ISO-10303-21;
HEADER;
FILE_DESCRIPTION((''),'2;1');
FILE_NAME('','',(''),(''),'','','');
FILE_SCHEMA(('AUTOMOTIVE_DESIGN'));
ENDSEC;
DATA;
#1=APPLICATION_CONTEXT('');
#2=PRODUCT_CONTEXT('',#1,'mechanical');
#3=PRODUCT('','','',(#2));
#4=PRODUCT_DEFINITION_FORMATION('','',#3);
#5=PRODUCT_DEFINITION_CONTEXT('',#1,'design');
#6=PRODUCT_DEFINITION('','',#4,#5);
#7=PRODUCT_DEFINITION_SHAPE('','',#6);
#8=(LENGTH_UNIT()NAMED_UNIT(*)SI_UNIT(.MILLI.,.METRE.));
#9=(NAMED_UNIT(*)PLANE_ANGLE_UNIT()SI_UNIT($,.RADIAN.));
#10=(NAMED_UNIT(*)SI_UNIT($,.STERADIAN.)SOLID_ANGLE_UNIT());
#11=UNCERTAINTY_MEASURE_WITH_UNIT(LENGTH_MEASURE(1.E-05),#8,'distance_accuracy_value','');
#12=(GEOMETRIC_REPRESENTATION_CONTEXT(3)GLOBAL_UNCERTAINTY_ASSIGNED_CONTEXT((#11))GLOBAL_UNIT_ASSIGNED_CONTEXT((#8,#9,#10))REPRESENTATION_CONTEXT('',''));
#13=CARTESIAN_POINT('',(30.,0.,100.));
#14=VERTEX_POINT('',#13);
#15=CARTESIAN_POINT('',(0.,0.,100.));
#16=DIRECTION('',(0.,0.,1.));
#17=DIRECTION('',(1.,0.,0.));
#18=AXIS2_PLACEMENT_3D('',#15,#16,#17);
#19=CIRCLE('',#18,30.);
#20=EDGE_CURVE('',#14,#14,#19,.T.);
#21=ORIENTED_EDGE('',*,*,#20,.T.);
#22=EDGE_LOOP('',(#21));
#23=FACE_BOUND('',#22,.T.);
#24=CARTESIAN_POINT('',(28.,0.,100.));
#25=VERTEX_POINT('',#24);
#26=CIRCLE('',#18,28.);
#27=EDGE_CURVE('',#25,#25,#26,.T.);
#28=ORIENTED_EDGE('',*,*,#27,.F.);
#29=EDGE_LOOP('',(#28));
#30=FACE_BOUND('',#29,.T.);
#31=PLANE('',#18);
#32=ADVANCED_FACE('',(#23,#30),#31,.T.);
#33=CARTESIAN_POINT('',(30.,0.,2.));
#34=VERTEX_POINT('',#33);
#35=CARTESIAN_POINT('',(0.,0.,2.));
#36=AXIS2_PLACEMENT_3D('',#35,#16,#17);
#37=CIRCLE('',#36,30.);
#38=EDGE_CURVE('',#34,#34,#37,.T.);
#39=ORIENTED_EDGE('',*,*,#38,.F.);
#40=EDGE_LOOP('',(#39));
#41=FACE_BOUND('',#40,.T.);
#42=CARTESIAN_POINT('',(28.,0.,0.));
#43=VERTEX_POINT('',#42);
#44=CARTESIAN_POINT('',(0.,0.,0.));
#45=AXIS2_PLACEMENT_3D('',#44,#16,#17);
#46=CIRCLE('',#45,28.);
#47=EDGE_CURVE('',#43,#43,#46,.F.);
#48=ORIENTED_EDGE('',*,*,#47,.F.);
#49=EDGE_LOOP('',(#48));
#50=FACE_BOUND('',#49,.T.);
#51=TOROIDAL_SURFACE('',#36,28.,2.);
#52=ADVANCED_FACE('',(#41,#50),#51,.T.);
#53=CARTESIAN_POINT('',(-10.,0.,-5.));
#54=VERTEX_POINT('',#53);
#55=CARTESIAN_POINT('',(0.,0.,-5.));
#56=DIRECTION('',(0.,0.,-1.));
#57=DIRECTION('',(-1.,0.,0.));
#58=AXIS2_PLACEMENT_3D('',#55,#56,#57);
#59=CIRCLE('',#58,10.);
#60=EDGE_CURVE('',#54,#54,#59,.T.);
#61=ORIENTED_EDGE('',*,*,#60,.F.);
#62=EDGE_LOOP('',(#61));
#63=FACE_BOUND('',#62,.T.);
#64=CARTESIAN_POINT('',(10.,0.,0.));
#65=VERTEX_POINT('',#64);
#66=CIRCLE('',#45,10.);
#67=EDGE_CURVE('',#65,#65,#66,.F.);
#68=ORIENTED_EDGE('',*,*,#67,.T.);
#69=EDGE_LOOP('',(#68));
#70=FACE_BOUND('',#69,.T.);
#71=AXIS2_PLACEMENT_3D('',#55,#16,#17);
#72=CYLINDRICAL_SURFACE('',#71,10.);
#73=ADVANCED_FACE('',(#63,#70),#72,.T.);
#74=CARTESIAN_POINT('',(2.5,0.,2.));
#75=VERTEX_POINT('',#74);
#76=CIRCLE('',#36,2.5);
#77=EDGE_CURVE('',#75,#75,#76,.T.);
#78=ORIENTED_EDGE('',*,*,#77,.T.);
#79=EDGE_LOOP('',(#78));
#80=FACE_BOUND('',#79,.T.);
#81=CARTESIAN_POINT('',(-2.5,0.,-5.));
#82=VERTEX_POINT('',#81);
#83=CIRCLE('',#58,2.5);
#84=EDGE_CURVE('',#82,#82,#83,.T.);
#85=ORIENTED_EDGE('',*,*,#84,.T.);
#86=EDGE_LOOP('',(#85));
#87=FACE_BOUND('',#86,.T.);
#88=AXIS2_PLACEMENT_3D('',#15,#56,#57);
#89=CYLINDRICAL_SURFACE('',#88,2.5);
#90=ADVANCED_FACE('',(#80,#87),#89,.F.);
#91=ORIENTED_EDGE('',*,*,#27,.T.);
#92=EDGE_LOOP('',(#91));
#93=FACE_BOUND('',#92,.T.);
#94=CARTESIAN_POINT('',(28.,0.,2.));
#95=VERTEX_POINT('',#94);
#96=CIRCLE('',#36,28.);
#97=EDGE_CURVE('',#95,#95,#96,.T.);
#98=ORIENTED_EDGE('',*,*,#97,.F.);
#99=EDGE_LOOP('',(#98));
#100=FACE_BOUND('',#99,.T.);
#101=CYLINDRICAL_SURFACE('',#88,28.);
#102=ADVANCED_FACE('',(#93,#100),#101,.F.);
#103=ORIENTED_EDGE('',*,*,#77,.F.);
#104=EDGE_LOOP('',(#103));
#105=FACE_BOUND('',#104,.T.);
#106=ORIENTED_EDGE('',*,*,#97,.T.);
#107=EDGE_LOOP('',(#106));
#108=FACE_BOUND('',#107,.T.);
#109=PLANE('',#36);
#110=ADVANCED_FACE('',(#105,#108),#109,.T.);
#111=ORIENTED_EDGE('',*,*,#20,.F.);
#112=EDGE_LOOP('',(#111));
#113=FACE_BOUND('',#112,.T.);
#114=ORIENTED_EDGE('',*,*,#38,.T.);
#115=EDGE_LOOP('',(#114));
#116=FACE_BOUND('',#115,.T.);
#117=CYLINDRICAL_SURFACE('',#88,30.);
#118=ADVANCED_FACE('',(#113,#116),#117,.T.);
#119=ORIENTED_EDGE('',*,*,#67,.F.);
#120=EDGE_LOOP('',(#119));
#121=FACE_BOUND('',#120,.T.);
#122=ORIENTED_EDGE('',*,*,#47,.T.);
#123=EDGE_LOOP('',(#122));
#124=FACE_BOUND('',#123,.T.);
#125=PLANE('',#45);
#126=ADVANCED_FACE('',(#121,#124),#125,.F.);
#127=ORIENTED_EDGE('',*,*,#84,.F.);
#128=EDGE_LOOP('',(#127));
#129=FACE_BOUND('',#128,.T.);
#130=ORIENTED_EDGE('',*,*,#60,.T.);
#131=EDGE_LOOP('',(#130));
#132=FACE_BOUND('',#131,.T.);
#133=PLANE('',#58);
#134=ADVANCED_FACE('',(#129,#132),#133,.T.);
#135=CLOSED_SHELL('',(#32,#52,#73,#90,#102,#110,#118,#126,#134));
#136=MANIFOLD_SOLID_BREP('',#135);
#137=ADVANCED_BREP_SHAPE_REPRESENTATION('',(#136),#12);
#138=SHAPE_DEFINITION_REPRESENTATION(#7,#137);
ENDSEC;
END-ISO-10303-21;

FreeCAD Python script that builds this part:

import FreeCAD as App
import Part
import Sketcher
from FreeCAD import Vector


def edges_at(feature, points):
    """Names of the edges that pass closest to the given points."""
    edges = feature.Shape.Edges
    near = lambda p: min(range(len(edges)), key=lambda i: edges[i].distToShape(Part.Vertex(*p))[0])
    return sorted({f"Edge{near(p) + 1}" for p in points})


def faces_at(feature, points):
    """Names of the faces that lie closest to the given points."""
    faces = feature.Shape.Faces
    near = lambda p: min(range(len(faces)), key=lambda i: faces[i].distToShape(Part.Vertex(*p))[0])
    return sorted({f"Face{near(p) + 1}" for p in points})

doc = App.newDocument("Part")
body = doc.addObject("PartDesign::Body", "Body")

# Sketch on XY plane
sketch1 = body.newObject("Sketcher::SketchObject", "Sketch")
sketch1.AttachmentSupport = (doc.getObject("XY_Plane"), [""])
sketch1.MapMode = "FlatFace"
sketch1.addGeometry(Part.Circle(Vector(0, 0, 0), Vector(0, 0, 1), 30), False)
sketch1.addConstraint(Sketcher.Constraint("Coincident", 0, 3, -1, 1))
sketch1.addConstraint(Sketcher.Constraint("Diameter", 0, 60.0))
pad1 = body.newObject("PartDesign::Pad", "Pad")
pad1.Profile = sketch1
pad1.Length = 100
doc.recompute()

thickness = body.newObject("PartDesign::Thickness", "Thickness")
thickness.Base = (pad1, faces_at(pad1, [(0, 0, 100)]))
thickness.Value = 2
thickness.Reversed = True
thickness.Join = "Intersection"
doc.recompute()

fillet = body.newObject("PartDesign::Fillet", "Fillet")
fillet.Base = (thickness, edges_at(thickness, [(-30, 0, 0)]))
fillet.Radius = 2

# Sketch on XY plane
sketch2 = body.newObject("Sketcher::SketchObject", "Sketch001")
sketch2.AttachmentSupport = (doc.getObject("XY_Plane"), [""])
sketch2.MapMode = "FlatFace"
sketch2.addGeometry(Part.Circle(Vector(0, 0, 0), Vector(0, 0, 1), 10), False)
sketch2.addConstraint(Sketcher.Constraint("Coincident", 0, 3, -1, 1))
sketch2.addConstraint(Sketcher.Constraint("Diameter", 0, 20.0))
pad2 = body.newObject("PartDesign::Pad", "Pad001")
pad2.Profile = sketch2
pad2.Length = 5
pad2.Reversed = True

# Sketch on XY plane
sketch3 = body.newObject("Sketcher::SketchObject", "Sketch002")
sketch3.AttachmentSupport = (doc.getObject("XY_Plane"), [""])
sketch3.MapMode = "FlatFace"
sketch3.AttachmentOffset = App.Placement(Vector(0, 0, -5), App.Rotation())
sketch3.addGeometry(Part.Circle(Vector(0, 0, 0), Vector(0, 0, 1), 2.5), False)
sketch3.addConstraint(Sketcher.Constraint("Coincident", 0, 3, -1, 1))
sketch3.addConstraint(Sketcher.Constraint("Diameter", 0, 5.0))
pocket1 = body.newObject("PartDesign::Pocket", "Pocket")
pocket1.Profile = sketch3
pocket1.Type = "ThroughAll"
pocket1.Reversed = True

doc.recompute()
